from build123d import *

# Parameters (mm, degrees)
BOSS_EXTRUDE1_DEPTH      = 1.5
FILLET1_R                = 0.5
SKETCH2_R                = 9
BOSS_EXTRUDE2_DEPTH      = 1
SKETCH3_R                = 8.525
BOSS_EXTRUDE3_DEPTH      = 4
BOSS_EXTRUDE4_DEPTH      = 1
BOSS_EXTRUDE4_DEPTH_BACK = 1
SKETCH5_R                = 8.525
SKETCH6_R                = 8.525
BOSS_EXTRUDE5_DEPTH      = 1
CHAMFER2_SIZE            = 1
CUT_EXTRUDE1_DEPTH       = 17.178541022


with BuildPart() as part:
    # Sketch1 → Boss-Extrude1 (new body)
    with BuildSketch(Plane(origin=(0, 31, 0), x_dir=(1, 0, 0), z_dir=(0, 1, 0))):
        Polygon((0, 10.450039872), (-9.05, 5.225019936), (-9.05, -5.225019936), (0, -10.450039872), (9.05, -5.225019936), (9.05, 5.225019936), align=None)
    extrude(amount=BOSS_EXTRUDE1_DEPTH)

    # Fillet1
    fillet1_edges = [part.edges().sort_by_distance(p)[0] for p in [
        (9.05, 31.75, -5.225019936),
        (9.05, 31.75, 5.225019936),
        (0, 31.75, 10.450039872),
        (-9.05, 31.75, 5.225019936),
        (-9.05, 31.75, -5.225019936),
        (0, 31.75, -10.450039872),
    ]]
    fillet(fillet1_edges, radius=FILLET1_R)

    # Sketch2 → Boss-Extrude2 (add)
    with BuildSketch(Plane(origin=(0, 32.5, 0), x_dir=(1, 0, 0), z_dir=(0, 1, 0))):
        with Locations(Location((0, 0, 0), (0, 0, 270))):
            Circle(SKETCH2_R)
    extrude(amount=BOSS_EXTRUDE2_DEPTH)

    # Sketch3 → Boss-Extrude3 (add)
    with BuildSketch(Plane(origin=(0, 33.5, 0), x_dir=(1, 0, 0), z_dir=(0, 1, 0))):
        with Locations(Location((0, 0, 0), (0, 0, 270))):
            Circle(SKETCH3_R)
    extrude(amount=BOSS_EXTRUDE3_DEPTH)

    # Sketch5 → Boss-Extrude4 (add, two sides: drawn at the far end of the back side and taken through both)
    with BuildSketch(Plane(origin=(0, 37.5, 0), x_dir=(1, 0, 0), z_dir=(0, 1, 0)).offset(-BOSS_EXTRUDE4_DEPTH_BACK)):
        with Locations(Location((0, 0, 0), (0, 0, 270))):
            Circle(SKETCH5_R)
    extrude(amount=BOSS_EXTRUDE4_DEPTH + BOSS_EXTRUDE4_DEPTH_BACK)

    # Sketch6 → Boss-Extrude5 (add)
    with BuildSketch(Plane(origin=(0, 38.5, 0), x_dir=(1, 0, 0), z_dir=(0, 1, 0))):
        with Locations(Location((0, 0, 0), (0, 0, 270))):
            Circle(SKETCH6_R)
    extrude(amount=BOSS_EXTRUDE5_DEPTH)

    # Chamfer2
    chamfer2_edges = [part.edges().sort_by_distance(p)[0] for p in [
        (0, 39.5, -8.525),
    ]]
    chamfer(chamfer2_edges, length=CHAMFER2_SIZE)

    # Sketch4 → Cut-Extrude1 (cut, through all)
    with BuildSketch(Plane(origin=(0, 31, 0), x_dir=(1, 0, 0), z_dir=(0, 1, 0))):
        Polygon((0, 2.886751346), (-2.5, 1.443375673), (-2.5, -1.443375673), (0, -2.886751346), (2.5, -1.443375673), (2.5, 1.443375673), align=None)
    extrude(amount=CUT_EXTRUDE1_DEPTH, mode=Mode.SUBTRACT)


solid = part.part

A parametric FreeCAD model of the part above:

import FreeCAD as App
import Part
import Sketcher
Q = App.Units.Quantity


def edges_at(feature, points):
    """Names of the edges that pass closest to the given points."""
    edges = feature.Shape.Edges
    near = lambda p: min(range(len(edges)), key=lambda i: edges[i].distToShape(Part.Vertex(*p))[0])
    return sorted({f"Edge{near(p) + 1}" for p in points})

doc = App.newDocument("Part")
params = doc.addObject("Spreadsheet::Sheet", "Params")
for row, (alias, value) in enumerate([
    ("pad1_length", "1.5 mm"),
    ("fillet_radius", "0.5 mm"),
    ("sketch2_diameter", "18 mm"),
    ("pad2_length", "1 mm"),
    ("sketch3_diameter", "17.05 mm"),
    ("pad3_length", "4 mm"),
    ("sketch4_diameter", "17.05 mm"),
    ("pad4_length", "1 mm"),
    ("pad4_length2", "1 mm"),
    ("sketch5_diameter", "17.05 mm"),
    ("pad5_length", "1 mm"),
    ("chamfer_size", "1 mm"),
], start=1):
    params.set(f"A{row}", alias)
    params.set(f"B{row}", "=" + value)
    params.setAlias(f"B{row}", alias)

body = doc.addObject("PartDesign::Body", "Body")

# Sketch on XZ plane
sketch1 = body.newObject("Sketcher::SketchObject", "Sketch")
sketch1.AttachmentSupport = (doc.getObject("XZ_Plane"), [""])
sketch1.MapMode = "FlatFace"
sketch1.AttachmentOffset = App.Placement(App.Vector(0, 0, -31), App.Rotation())
sketch1.addGeometry([
    Part.LineSegment(App.Vector(0, -10.45004, 0), App.Vector(-9.05, -5.22502, 0)),  # 0
    Part.LineSegment(App.Vector(-9.05, -5.22502, 0), App.Vector(-9.05, 5.22502, 0)),  # 1
    Part.LineSegment(App.Vector(-9.05, 5.22502, 0), App.Vector(0, 10.45004, 0)),  # 2
    Part.LineSegment(App.Vector(0, 10.45004, 0), App.Vector(9.05, 5.22502, 0)),  # 3
    Part.LineSegment(App.Vector(9.05, 5.22502, 0), App.Vector(9.05, -5.22502, 0)),  # 4
    Part.LineSegment(App.Vector(9.05, -5.22502, 0), App.Vector(0, -10.45004, 0)),  # 5
], False)
sketch1.addConstraint([
    Sketcher.Constraint("Coincident", 0, 2, 1, 1),
    Sketcher.Constraint("Coincident", 1, 2, 2, 1),
    Sketcher.Constraint("Coincident", 2, 2, 3, 1),
    Sketcher.Constraint("Coincident", 3, 2, 4, 1),
    Sketcher.Constraint("Coincident", 4, 2, 5, 1),
    Sketcher.Constraint("Coincident", 5, 2, 0, 1),
    Sketcher.Constraint("Vertical", 1),
    Sketcher.Constraint("Vertical", 4),
    Sketcher.Constraint("Symmetric", 0, 2, 3, 2, -1, 1),
    Sketcher.Constraint("Symmetric", 2, 2, 5, 2, -1, 1),
    Sketcher.Constraint("PointOnObject", 2, 2, -2),
    Sketcher.Constraint("Parallel", 2, 5),
    Sketcher.Constraint("Horizontal", 1, 2, 3, 2),
    Sketcher.Constraint("Angle", 0, Q("150 deg")),
    Sketcher.Constraint("DistanceX", 1, 2, 3, 2, Q("18.1 mm")),
    Sketcher.Constraint("DistanceY", 1, 1, 1, 2, Q("10.45004 mm")),
])
pad1 = body.newObject("PartDesign::Pad", "Pad")
pad1.Profile = sketch1
pad1.setExpression("Length", "Params.pad1_length")
pad1.Reversed = True
doc.recompute()

fillet = body.newObject("PartDesign::Fillet", "Fillet")
fillet.Base = (pad1, edges_at(pad1, [
    (9.05, 31.75, -5.225),
    (9.05, 31.75, 5.225),
    (0, 31.75, 10.45),
    (-9.05, 31.75, 5.225),
    (-9.05, 31.75, -5.225),
    (0, 31.75, -10.45),
]))
fillet.setExpression("Radius", "Params.fillet_radius")

# Sketch on XZ plane
sketch2 = body.newObject("Sketcher::SketchObject", "Sketch001")
sketch2.AttachmentSupport = (doc.getObject("XZ_Plane"), [""])
sketch2.MapMode = "FlatFace"
sketch2.AttachmentOffset = App.Placement(App.Vector(0, 0, -32.5), App.Rotation())
sketch2.addGeometry(Part.Circle(App.Vector(0, 0, 0), App.Vector(0, 0, 1), 9), False)
sketch2.addConstraint([
    Sketcher.Constraint("Coincident", 0, 3, -1, 1),
    Sketcher.Constraint("Diameter", 0, Q("18 mm")),
])
sketch2.setExpression("Constraints[1]", "Params.sketch2_diameter")
pad2 = body.newObject("PartDesign::Pad", "Pad001")
pad2.Profile = sketch2
pad2.setExpression("Length", "Params.pad2_length")
pad2.Reversed = True

# Sketch on XZ plane
sketch3 = body.newObject("Sketcher::SketchObject", "Sketch002")
sketch3.AttachmentSupport = (doc.getObject("XZ_Plane"), [""])
sketch3.MapMode = "FlatFace"
sketch3.AttachmentOffset = App.Placement(App.Vector(0, 0, -33.5), App.Rotation())
sketch3.addGeometry(Part.Circle(App.Vector(0, 0, 0), App.Vector(0, 0, 1), 8.525), False)
sketch3.addConstraint([
    Sketcher.Constraint("Coincident", 0, 3, -1, 1),
    Sketcher.Constraint("Diameter", 0, Q("17.05 mm")),
])
sketch3.setExpression("Constraints[1]", "Params.sketch3_diameter")
pad3 = body.newObject("PartDesign::Pad", "Pad002")
pad3.Profile = sketch3
pad3.setExpression("Length", "Params.pad3_length")
pad3.Reversed = True

# Sketch on XZ plane
sketch4 = body.newObject("Sketcher::SketchObject", "Sketch003")
sketch4.AttachmentSupport = (doc.getObject("XZ_Plane"), [""])
sketch4.MapMode = "FlatFace"
sketch4.AttachmentOffset = App.Placement(App.Vector(0, 0, -37.5), App.Rotation())
sketch4.addGeometry(Part.Circle(App.Vector(0, 0, 0), App.Vector(0, 0, 1), 8.525), False)
sketch4.addConstraint([
    Sketcher.Constraint("Coincident", 0, 3, -1, 1),
    Sketcher.Constraint("Diameter", 0, Q("17.05 mm")),
])
sketch4.setExpression("Constraints[1]", "Params.sketch4_diameter")
pad4 = body.newObject("PartDesign::Pad", "Pad003")
pad4.Profile = sketch4
pad4.Type = "TwoLengths"
pad4.setExpression("Length", "Params.pad4_length")
pad4.setExpression("Length2", "Params.pad4_length2")
pad4.Reversed = True

# Sketch on XZ plane
sketch5 = body.newObject("Sketcher::SketchObject", "Sketch004")
sketch5.AttachmentSupport = (doc.getObject("XZ_Plane"), [""])
sketch5.MapMode = "FlatFace"
sketch5.AttachmentOffset = App.Placement(App.Vector(0, 0, -38.5), App.Rotation())
sketch5.addGeometry(Part.Circle(App.Vector(0, 0, 0), App.Vector(0, 0, 1), 8.525), False)
sketch5.addConstraint([
    Sketcher.Constraint("Coincident", 0, 3, -1, 1),
    Sketcher.Constraint("Diameter", 0, Q("17.05 mm")),
])
sketch5.setExpression("Constraints[1]", "Params.sketch5_diameter")
pad5 = body.newObject("PartDesign::Pad", "Pad004")
pad5.Profile = sketch5
pad5.setExpression("Length", "Params.pad5_length")
pad5.Reversed = True
doc.recompute()

chamfer = body.newObject("PartDesign::Chamfer", "Chamfer")
chamfer.Base = (pad5, edges_at(pad5, [(0, 39.5, -8.525)]))
chamfer.setExpression("Size", "Params.chamfer_size")

# Sketch on XZ plane
sketch6 = body.newObject("Sketcher::SketchObject", "Sketch005")
sketch6.AttachmentSupport = (doc.getObject("XZ_Plane"), [""])
sketch6.MapMode = "FlatFace"
sketch6.AttachmentOffset = App.Placement(App.Vector(0, 0, -31), App.Rotation())
sketch6.addGeometry([
    Part.LineSegment(App.Vector(0, -2.886751, 0), App.Vector(-2.5, -1.443376, 0)),  # 0
    Part.LineSegment(App.Vector(-2.5, -1.443376, 0), App.Vector(-2.5, 1.443376, 0)),  # 1
    Part.LineSegment(App.Vector(-2.5, 1.443376, 0), App.Vector(0, 2.886751, 0)),  # 2
    Part.LineSegment(App.Vector(0, 2.886751, 0), App.Vector(2.5, 1.443376, 0)),  # 3
    Part.LineSegment(App.Vector(2.5, 1.443376, 0), App.Vector(2.5, -1.443376, 0)),  # 4
    Part.LineSegment(App.Vector(2.5, -1.443376, 0), App.Vector(0, -2.886751, 0)),  # 5
], False)
sketch6.addConstraint([
    Sketcher.Constraint("Coincident", 0, 2, 1, 1),
    Sketcher.Constraint("Coincident", 1, 2, 2, 1),
    Sketcher.Constraint("Coincident", 2, 2, 3, 1),
    Sketcher.Constraint("Coincident", 3, 2, 4, 1),
    Sketcher.Constraint("Coincident", 4, 2, 5, 1),
    Sketcher.Constraint("Coincident", 5, 2, 0, 1),
    Sketcher.Constraint("Vertical", 1),
    Sketcher.Constraint("Vertical", 4),
    Sketcher.Constraint("Symmetric", 0, 2, 3, 2, -1, 1),
    Sketcher.Constraint("Symmetric", 2, 2, 5, 2, -1, 1),
    Sketcher.Constraint("PointOnObject", 2, 2, -2),
    Sketcher.Constraint("Parallel", 2, 5),
    Sketcher.Constraint("Horizontal", 1, 2, 3, 2),
    Sketcher.Constraint("Angle", 0, Q("150 deg")),
    Sketcher.Constraint("DistanceX", 1, 2, 3, 2, Q("5 mm")),
    Sketcher.Constraint("DistanceY", 1, 1, 1, 2, Q("2.886751 mm")),
])
pocket1 = body.newObject("PartDesign::Pocket", "Pocket")
pocket1.Profile = sketch6
pocket1.Type = "ThroughAll"

doc.recompute()
